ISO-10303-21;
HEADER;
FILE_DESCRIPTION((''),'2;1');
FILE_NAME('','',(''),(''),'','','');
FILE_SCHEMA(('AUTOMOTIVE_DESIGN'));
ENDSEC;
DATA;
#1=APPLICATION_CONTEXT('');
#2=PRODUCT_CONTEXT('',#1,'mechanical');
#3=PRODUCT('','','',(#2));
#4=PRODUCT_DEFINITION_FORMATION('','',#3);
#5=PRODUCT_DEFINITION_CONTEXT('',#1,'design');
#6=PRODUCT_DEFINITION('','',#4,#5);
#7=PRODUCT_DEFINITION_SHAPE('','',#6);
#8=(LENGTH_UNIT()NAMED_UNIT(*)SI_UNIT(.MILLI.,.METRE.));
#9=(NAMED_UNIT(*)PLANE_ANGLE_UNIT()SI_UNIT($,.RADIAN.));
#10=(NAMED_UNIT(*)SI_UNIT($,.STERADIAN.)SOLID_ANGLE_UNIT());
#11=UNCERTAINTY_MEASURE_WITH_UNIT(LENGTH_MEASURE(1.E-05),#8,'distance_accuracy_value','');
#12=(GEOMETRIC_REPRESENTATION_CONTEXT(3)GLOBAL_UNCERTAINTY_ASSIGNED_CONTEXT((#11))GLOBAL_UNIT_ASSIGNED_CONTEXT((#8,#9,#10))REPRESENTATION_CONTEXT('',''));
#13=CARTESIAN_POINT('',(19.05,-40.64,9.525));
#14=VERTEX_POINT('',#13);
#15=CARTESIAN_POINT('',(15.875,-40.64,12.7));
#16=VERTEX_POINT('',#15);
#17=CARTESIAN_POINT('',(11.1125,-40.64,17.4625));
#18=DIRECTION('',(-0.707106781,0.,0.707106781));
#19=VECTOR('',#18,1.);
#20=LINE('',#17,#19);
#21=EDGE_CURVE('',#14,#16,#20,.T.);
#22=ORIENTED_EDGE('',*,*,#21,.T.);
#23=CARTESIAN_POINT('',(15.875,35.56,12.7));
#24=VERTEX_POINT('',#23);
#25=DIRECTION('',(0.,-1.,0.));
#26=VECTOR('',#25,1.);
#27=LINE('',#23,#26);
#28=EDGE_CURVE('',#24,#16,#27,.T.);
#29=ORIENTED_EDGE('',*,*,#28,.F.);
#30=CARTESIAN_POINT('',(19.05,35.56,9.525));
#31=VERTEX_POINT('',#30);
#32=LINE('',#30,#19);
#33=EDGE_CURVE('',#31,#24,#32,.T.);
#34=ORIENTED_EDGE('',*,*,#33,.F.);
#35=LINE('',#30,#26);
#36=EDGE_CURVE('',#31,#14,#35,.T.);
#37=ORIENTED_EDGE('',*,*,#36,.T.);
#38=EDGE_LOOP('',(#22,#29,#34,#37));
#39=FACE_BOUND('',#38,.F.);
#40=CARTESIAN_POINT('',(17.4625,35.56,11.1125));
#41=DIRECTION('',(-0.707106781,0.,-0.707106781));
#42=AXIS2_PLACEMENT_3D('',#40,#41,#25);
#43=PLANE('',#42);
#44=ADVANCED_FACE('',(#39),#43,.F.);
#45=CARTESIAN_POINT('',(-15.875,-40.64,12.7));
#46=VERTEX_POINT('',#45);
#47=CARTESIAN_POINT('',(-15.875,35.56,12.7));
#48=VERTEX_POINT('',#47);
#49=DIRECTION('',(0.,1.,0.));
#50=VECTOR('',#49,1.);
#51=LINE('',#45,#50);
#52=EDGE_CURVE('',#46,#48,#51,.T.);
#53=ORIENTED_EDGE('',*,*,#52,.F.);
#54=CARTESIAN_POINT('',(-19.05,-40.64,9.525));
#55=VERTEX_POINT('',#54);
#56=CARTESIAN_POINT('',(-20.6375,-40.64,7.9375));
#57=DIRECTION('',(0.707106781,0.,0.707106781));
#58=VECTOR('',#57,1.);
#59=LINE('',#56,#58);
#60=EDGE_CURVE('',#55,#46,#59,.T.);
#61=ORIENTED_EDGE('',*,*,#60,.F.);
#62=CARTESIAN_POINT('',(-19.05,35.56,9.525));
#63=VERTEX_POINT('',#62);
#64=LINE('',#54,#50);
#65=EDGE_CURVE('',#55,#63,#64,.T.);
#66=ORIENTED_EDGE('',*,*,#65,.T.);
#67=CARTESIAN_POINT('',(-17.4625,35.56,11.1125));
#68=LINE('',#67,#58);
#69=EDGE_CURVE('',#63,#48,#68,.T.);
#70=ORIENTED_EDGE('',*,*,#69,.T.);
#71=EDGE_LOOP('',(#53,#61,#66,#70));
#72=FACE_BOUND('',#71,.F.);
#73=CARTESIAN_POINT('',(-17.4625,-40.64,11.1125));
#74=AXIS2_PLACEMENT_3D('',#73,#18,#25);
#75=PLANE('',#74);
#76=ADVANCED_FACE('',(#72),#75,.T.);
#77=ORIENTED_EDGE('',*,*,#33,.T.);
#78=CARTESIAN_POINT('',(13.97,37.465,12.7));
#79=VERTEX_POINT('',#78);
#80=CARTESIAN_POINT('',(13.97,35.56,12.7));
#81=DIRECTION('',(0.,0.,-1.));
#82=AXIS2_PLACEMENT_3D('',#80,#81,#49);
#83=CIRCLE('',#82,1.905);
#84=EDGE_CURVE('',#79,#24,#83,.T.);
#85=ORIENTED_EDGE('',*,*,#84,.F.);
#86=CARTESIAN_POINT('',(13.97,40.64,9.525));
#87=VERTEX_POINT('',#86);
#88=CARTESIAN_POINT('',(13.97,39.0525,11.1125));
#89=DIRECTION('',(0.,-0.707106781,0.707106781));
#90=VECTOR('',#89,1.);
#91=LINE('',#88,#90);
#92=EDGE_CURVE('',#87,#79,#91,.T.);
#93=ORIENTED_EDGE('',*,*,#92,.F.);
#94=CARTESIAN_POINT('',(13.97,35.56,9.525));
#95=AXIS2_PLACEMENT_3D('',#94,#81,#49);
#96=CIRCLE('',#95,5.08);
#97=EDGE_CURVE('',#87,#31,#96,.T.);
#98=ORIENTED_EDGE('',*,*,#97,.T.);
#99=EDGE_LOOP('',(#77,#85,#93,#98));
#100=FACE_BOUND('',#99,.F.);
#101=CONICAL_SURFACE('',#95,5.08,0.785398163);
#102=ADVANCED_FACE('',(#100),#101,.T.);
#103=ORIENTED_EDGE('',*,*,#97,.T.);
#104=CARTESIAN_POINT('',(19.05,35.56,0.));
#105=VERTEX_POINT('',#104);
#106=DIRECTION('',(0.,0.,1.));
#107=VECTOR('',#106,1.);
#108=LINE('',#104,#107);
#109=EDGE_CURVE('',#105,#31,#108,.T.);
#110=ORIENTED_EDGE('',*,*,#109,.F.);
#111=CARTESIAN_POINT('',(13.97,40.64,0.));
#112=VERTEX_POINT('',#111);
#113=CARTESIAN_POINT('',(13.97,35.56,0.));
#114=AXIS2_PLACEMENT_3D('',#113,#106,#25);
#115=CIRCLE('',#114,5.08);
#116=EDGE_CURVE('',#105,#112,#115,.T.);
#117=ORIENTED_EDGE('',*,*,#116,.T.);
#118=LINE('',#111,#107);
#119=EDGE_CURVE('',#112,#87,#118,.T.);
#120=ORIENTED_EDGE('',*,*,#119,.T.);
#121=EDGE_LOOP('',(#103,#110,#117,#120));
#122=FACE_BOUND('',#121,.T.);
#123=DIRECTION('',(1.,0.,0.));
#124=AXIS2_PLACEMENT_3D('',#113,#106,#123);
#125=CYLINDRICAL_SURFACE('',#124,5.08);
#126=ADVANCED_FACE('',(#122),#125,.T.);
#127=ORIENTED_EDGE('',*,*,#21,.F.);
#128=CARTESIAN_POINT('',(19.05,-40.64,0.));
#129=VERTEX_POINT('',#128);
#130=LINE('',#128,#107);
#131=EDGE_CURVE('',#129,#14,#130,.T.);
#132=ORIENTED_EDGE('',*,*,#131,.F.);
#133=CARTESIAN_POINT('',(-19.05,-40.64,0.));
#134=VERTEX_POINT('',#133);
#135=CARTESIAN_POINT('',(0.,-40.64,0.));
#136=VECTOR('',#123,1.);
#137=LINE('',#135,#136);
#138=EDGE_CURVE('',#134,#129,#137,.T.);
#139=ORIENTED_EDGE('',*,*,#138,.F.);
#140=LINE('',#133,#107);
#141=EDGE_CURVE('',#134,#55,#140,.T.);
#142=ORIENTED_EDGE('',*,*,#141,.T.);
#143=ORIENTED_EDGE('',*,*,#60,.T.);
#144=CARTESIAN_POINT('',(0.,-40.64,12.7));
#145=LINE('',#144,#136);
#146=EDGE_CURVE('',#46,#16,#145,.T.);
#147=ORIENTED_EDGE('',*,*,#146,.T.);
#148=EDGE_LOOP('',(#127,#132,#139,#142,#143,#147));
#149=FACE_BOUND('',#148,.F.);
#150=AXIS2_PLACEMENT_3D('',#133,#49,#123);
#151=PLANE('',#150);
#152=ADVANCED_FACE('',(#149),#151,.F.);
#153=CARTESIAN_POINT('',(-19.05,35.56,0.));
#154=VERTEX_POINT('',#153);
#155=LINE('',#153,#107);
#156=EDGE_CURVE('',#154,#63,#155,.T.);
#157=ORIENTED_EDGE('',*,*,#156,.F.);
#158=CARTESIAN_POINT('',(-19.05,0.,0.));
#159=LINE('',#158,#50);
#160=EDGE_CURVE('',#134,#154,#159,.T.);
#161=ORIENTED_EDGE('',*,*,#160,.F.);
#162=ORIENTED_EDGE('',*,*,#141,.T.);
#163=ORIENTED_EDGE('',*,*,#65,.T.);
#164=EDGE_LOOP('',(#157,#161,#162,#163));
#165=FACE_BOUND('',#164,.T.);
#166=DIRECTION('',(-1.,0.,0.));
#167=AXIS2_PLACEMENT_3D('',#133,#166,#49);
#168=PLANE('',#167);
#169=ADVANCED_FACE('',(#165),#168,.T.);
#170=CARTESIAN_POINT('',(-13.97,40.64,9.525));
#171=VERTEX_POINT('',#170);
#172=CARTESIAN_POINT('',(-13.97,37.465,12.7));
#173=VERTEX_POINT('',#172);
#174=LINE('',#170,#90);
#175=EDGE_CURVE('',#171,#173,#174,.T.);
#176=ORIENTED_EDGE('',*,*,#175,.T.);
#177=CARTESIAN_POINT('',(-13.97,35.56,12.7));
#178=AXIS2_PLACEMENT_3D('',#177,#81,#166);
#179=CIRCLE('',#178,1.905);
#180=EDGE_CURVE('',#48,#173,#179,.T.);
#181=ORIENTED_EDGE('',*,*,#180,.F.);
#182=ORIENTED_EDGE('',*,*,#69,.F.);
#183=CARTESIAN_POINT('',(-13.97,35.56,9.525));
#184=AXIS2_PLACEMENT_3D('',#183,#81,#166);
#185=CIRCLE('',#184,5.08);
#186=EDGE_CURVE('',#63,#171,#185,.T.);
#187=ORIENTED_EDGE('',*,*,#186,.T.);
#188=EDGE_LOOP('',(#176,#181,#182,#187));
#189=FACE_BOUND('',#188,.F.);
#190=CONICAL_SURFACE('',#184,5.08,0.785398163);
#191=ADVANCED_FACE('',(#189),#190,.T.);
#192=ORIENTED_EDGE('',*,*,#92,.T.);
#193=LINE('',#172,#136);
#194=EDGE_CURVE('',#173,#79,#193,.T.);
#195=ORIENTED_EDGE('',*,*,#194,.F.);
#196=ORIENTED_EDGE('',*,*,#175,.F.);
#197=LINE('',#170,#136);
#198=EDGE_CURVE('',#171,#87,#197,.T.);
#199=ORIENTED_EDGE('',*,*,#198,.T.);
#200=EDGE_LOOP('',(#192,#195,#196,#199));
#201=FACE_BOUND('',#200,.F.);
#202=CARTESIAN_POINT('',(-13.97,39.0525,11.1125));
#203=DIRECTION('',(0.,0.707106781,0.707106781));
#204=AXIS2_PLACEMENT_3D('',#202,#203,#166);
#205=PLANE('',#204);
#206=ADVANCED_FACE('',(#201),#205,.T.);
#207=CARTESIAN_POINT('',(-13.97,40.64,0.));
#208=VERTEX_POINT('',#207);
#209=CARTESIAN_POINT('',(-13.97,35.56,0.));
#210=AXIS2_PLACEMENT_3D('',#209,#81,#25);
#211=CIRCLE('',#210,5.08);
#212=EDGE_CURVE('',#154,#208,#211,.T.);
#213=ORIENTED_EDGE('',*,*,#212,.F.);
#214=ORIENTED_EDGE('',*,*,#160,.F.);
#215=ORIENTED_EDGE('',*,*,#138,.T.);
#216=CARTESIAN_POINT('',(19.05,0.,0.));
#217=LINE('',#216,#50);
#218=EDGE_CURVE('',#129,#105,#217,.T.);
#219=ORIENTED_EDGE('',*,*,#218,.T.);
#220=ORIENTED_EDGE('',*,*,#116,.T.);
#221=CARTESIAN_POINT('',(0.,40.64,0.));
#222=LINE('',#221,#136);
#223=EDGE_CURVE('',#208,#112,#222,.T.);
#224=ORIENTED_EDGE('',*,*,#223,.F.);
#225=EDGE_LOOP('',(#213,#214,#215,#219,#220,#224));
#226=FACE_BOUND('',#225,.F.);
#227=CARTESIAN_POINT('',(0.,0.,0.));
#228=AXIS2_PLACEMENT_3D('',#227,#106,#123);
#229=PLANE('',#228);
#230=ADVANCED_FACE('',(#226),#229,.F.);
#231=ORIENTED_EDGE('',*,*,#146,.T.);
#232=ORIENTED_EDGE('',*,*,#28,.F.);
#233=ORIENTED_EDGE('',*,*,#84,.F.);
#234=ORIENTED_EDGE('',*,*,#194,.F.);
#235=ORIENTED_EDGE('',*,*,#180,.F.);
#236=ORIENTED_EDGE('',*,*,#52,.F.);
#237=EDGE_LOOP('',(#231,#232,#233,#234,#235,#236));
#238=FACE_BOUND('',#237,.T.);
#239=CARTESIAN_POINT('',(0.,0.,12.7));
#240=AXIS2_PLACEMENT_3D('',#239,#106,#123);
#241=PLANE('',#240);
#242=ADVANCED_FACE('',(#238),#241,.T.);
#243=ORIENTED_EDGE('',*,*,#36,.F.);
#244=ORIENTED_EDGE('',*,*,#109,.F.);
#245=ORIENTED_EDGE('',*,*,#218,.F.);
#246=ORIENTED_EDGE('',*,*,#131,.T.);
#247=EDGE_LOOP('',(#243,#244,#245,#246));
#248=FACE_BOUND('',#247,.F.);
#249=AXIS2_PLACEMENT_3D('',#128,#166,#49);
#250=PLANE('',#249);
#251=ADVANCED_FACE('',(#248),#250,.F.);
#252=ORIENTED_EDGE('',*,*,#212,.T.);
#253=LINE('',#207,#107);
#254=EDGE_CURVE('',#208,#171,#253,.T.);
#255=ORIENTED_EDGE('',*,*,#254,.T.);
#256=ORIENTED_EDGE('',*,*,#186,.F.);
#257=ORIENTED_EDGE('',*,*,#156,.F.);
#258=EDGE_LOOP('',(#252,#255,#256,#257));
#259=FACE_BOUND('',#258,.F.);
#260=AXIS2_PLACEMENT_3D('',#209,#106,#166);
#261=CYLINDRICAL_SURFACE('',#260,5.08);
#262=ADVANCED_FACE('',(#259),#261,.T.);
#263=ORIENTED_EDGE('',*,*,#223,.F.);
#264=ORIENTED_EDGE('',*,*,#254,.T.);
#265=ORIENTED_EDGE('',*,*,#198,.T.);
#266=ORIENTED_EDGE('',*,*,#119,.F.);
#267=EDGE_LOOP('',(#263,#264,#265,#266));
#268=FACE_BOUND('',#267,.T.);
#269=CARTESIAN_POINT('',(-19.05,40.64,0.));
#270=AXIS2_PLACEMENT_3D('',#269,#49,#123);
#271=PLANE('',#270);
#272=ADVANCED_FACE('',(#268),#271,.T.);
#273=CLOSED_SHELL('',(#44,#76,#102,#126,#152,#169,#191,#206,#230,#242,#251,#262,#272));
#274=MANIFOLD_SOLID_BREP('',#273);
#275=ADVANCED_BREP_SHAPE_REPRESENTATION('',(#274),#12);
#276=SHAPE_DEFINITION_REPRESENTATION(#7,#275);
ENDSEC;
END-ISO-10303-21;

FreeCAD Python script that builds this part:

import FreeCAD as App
import Part
import Sketcher
Q = App.Units.Quantity


def edges_at(feature, points):
    """Names of the edges that pass closest to the given points."""
    edges = feature.Shape.Edges
    near = lambda p: min(range(len(edges)), key=lambda i: edges[i].distToShape(Part.Vertex(*p))[0])
    return sorted({f"Edge{near(p) + 1}" for p in points})

doc = App.newDocument("Part")
body = doc.addObject("PartDesign::Body", "Body")

# Sketch on XY plane
sketch1 = body.newObject("Sketcher::SketchObject", "Sketch")
sketch1.AttachmentSupport = (doc.getObject("XY_Plane"), [""])
sketch1.MapMode = "FlatFace"
sketch1.addGeometry(Part.LineSegment(App.Vector(-19, 41, 0), App.Vector(-19, -41, 0)), False)
sketch1.addGeometry(Part.LineSegment(App.Vector(-19, -41, 0), App.Vector(19, -41, 0)), False)
sketch1.addGeometry(Part.LineSegment(App.Vector(19, -41, 0), App.Vector(19, 41, 0)), False)
sketch1.addGeometry(Part.LineSegment(App.Vector(19, 41, 0), App.Vector(-19, 41, 0)), False)
sketch1.addConstraint(Sketcher.Constraint("Coincident", 0, 2, 1, 1))
sketch1.addConstraint(Sketcher.Constraint("Coincident", 1, 2, 2, 1))
sketch1.addConstraint(Sketcher.Constraint("Coincident", 2, 2, 3, 1))
sketch1.addConstraint(Sketcher.Constraint("Coincident", 3, 2, 0, 1))
sketch1.addConstraint(Sketcher.Constraint("Vertical", 0))
sketch1.addConstraint(Sketcher.Constraint("Horizontal", 1))
sketch1.addConstraint(Sketcher.Constraint("Vertical", 2))
sketch1.addConstraint(Sketcher.Constraint("Horizontal", 3))
sketch1.addConstraint(Sketcher.Constraint("Symmetric", 0, 2, 2, 2, -1, 1))
sketch1.addConstraint(Sketcher.Constraint("DistanceX", 1, 1, 1, 2, Q("1.5 in")))
sketch1.addConstraint(Sketcher.Constraint("DistanceY", 0, 2, 0, 1, Q("3.2 in")))
pad1 = body.newObject("PartDesign::Pad", "Pad")
pad1.Profile = sketch1
pad1.Length = Q("0.5 in")
doc.recompute()

fillet = body.newObject("PartDesign::Fillet", "Fillet")
fillet.Base = (pad1, edges_at(pad1, [(-19.05, 40.64, 6.35), (19.05, 40.64, 6.35)]))
fillet.Radius = Q("0.2 in")
doc.recompute()

chamfer = body.newObject("PartDesign::Chamfer", "Chamfer")
chamfer.Base = (fillet, edges_at(fillet, [(-19.05, -2.54, 12.7), (0, 40.64, 12.7), (19.05, -2.54, 12.7)]))
chamfer.Size = Q("0.125 in")

doc.recompute()
